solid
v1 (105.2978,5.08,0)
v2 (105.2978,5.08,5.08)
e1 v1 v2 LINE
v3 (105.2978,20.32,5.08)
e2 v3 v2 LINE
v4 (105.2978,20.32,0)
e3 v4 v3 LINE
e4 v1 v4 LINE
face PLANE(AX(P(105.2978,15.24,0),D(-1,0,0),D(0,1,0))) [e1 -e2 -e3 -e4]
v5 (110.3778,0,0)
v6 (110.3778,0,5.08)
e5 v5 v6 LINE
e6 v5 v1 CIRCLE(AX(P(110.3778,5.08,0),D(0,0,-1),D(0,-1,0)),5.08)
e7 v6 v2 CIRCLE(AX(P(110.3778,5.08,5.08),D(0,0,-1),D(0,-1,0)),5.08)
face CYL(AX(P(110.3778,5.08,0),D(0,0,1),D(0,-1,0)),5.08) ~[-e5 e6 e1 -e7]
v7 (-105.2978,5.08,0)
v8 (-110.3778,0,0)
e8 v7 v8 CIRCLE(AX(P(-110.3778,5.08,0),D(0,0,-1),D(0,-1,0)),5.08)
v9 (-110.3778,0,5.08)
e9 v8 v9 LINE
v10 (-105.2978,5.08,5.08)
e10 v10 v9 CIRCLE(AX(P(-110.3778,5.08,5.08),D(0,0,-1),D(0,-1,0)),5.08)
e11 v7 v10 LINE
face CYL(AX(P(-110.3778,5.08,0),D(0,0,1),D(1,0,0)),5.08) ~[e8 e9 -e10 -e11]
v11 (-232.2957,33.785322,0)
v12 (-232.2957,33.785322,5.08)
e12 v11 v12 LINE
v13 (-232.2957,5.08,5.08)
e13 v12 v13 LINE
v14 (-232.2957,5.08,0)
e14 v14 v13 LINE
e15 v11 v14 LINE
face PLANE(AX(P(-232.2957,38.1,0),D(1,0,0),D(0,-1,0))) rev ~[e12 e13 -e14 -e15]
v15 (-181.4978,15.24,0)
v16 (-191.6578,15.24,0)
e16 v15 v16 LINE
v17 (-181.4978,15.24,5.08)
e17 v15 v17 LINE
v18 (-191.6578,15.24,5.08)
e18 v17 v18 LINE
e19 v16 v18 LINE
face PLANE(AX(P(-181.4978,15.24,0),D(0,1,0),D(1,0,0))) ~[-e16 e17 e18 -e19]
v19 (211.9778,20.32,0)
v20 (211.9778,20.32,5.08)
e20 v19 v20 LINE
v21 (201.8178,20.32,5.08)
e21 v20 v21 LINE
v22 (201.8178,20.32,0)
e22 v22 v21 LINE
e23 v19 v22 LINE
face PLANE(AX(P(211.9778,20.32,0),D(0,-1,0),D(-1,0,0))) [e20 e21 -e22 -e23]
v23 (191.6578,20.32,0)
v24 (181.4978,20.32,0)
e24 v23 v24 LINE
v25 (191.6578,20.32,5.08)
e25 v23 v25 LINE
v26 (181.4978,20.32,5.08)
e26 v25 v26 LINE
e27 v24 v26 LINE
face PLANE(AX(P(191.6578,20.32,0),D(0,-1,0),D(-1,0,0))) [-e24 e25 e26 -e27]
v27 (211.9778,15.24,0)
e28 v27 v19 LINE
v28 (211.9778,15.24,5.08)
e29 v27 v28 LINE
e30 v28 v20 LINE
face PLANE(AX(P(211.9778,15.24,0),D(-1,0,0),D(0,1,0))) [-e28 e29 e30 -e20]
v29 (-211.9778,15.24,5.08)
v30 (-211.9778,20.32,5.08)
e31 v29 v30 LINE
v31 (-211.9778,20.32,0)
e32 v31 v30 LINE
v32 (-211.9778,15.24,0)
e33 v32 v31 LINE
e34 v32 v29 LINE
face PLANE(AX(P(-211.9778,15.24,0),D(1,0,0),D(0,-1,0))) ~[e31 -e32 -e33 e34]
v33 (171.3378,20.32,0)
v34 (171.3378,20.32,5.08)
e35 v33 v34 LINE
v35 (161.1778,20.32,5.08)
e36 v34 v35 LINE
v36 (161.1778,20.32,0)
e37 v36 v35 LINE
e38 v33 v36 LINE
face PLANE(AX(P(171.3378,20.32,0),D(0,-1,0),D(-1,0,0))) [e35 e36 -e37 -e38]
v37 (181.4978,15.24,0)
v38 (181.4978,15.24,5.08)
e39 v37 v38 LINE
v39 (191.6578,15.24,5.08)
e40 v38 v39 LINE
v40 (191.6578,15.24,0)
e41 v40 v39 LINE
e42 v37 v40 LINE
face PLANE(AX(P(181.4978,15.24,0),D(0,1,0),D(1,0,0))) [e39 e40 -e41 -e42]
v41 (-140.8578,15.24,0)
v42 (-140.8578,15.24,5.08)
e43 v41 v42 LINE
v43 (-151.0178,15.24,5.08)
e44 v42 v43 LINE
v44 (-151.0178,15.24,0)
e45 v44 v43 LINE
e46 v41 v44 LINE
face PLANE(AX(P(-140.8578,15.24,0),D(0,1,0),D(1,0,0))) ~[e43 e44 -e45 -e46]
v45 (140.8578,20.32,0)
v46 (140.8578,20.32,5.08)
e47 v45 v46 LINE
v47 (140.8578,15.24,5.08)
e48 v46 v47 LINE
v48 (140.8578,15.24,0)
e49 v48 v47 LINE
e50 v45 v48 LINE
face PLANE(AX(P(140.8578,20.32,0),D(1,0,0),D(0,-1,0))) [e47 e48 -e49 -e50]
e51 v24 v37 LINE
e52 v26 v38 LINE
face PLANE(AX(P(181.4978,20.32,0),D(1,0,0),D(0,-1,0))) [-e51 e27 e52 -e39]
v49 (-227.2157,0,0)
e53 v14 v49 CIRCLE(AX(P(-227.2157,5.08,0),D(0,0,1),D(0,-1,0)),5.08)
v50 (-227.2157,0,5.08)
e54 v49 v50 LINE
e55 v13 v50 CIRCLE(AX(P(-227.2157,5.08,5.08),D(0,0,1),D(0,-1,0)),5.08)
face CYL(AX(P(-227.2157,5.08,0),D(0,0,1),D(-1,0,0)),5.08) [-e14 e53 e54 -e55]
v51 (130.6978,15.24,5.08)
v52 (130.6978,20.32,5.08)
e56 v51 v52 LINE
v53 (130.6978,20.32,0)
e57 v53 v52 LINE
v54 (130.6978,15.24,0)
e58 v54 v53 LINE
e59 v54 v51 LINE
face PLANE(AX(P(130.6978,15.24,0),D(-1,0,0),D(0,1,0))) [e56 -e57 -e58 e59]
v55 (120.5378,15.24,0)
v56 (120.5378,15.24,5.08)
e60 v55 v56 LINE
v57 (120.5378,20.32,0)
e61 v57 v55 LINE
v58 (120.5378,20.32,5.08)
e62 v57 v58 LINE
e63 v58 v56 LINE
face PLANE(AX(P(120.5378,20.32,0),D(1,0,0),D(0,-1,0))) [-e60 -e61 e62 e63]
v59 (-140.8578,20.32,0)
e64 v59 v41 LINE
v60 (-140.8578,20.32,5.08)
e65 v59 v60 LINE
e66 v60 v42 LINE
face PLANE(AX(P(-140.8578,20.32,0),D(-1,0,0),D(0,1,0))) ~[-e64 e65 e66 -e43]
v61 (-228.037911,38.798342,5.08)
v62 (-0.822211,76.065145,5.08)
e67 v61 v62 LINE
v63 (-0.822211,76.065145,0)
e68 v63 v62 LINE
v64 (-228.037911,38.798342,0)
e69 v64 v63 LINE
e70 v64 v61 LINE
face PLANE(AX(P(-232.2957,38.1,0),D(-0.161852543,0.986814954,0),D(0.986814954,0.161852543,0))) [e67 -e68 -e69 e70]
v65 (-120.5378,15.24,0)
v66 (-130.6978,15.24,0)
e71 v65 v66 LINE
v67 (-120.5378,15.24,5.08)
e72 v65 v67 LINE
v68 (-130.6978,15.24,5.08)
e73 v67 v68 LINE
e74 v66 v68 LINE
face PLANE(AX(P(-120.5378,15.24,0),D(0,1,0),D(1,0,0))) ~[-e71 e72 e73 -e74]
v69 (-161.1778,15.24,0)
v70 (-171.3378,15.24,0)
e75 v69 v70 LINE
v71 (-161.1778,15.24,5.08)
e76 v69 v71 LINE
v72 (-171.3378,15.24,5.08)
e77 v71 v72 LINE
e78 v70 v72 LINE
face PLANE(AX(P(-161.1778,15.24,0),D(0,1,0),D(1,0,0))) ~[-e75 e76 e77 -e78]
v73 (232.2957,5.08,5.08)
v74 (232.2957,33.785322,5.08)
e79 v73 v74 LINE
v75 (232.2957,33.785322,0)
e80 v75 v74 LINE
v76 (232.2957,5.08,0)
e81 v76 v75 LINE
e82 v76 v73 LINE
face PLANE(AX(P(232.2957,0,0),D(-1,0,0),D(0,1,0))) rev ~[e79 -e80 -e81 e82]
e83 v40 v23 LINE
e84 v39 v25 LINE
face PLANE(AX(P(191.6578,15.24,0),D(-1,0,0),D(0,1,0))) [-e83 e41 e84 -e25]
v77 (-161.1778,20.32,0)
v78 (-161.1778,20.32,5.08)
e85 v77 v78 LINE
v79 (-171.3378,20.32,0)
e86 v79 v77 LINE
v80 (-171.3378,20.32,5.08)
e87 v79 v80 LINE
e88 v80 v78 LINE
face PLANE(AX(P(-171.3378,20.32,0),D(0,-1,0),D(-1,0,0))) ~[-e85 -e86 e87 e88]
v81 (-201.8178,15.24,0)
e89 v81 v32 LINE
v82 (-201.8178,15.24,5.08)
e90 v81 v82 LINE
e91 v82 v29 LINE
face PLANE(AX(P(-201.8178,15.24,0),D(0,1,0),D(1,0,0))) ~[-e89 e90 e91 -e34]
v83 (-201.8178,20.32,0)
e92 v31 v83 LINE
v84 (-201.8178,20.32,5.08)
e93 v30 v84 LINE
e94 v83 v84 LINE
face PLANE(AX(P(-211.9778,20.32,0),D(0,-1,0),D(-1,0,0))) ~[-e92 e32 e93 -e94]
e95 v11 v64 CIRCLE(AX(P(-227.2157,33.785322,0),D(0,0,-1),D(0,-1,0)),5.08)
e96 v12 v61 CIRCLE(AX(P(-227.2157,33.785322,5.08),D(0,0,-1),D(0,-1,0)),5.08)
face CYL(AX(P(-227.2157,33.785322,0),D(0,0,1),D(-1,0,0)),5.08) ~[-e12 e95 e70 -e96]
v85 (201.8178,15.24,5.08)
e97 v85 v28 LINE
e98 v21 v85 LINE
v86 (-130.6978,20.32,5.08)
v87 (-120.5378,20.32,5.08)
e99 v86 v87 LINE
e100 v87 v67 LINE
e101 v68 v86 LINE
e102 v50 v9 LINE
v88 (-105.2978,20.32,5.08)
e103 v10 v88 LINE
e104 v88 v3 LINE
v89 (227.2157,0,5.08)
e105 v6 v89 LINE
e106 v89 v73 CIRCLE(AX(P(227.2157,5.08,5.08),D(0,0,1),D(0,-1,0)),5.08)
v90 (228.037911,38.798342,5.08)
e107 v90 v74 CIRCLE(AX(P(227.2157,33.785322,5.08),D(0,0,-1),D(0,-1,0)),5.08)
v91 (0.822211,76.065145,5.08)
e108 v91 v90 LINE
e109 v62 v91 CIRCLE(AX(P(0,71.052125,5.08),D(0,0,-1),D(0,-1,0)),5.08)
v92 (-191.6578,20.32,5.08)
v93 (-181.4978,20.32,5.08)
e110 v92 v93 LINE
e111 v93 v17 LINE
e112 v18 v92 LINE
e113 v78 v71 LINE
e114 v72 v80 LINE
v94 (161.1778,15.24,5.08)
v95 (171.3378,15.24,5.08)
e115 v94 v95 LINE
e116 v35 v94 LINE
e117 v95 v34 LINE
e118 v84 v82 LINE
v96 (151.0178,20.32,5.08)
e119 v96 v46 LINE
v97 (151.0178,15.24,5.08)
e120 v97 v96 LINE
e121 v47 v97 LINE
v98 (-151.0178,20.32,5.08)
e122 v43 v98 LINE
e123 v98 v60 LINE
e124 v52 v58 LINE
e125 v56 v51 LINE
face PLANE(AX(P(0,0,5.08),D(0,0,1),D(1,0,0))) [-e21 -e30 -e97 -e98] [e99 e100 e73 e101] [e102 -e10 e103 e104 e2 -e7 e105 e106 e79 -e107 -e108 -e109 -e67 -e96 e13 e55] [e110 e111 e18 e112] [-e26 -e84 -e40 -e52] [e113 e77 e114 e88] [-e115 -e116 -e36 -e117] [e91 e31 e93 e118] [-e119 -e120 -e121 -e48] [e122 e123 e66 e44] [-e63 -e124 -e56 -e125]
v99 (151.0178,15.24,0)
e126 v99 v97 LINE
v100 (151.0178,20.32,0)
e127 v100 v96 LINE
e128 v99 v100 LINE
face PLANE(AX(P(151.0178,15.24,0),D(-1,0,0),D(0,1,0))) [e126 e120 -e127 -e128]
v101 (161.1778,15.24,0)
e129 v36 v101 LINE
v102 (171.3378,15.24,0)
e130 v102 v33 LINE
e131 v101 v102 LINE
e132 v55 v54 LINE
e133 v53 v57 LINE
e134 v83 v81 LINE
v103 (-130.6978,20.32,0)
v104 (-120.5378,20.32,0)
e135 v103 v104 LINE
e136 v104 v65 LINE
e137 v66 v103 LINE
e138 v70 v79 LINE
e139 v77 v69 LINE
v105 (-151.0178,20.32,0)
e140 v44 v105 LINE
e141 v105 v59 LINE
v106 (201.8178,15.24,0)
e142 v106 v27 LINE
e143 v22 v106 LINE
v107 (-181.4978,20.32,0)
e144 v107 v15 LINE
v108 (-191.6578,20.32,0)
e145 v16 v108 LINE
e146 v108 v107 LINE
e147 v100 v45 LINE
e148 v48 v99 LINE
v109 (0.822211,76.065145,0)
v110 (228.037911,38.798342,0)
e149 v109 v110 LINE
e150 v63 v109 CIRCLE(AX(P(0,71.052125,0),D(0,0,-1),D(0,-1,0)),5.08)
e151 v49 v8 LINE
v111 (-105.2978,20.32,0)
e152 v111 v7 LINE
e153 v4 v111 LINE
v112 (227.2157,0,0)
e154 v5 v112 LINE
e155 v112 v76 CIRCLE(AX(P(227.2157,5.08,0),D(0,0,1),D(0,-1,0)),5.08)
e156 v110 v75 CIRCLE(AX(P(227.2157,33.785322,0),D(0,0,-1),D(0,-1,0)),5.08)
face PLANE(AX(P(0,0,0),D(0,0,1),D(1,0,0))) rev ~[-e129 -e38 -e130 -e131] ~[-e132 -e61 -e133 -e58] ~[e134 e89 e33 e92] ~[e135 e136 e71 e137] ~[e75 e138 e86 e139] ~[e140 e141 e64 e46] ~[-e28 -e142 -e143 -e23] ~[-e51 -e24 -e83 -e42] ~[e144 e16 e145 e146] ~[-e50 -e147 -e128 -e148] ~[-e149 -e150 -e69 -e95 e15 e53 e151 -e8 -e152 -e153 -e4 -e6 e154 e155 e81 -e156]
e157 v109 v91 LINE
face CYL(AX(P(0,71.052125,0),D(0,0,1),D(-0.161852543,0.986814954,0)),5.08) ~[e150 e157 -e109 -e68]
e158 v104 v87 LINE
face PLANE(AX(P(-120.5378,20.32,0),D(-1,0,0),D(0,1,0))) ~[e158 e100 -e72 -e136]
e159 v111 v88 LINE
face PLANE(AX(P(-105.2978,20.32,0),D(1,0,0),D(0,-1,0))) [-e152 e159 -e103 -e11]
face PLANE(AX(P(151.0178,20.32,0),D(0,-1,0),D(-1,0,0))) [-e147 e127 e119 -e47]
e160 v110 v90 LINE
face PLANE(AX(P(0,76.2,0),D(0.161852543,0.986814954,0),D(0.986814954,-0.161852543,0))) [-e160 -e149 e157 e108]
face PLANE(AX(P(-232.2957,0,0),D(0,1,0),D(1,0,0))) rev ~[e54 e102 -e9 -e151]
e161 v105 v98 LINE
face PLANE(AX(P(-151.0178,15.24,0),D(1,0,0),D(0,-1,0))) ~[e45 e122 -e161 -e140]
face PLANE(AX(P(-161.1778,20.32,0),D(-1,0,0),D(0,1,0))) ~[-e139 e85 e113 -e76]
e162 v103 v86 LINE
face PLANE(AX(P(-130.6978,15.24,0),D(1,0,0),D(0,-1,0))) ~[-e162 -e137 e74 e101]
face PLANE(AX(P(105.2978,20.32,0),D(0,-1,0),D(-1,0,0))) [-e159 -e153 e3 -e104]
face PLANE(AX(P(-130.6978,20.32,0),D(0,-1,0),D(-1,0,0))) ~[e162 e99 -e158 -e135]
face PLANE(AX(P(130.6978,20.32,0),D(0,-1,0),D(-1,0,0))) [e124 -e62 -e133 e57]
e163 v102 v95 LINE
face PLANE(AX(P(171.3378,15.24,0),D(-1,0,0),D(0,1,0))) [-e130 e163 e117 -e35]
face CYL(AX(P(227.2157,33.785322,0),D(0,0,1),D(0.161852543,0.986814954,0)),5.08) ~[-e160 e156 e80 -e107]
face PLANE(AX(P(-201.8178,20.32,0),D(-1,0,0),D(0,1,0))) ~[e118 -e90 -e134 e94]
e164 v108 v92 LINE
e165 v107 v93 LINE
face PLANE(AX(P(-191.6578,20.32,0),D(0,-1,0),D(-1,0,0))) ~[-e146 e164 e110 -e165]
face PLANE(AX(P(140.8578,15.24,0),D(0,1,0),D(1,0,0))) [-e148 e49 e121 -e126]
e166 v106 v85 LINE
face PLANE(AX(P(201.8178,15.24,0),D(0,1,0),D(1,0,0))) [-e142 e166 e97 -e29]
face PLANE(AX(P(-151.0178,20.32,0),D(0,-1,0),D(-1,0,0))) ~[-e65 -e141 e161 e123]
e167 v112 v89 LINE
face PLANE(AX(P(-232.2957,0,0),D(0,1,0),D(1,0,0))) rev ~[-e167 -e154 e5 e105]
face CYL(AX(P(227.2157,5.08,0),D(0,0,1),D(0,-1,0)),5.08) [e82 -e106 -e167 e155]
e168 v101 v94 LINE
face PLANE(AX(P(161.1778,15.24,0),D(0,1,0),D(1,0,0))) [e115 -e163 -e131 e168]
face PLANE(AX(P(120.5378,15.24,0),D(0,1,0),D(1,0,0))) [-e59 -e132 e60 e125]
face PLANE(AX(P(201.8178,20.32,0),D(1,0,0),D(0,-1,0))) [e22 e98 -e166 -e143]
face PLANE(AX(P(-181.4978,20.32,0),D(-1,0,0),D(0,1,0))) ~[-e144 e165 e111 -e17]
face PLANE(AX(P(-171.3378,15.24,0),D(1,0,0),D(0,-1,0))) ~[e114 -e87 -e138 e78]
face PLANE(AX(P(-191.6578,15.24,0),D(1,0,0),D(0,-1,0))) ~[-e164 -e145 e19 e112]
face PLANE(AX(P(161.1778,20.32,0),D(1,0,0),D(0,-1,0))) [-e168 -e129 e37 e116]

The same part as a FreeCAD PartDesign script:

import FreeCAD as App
import Part
import Sketcher

V = App.Vector
Q = App.Units.Quantity


def edges_at(feature, points):
    """Names of the edges that pass closest to the given points."""
    edges = feature.Shape.Edges
    near = lambda p: min(range(len(edges)), key=lambda i: edges[i].distToShape(Part.Vertex(*p))[0])
    return sorted({f"Edge{near(p) + 1}" for p in points})


def add_polygon(sketch, points):
    """Adds a closed chain of lines whose ends are joined by coincident constraints."""
    first, n = sketch.GeometryCount, len(points)
    for a, b in zip(points, points[1:] + points[:1]):
        sketch.addGeometry(Part.LineSegment(App.Vector(*a, 0), App.Vector(*b, 0)), False)
    for i in range(n):
        sketch.addConstraint(Sketcher.Constraint("Coincident", first + i, 2, first + (i + 1) % n, 1))

doc = App.newDocument("Part")
params = doc.addObject("Spreadsheet::Sheet", "Params")
for row, (alias, value) in enumerate([
    ("sketch1_height", "1.5 in"),
    ("sketch1_width", "18.291 in"),
    ("pad1_length", "0.2 in"),
    ("fillet_radius", "0.2 in"),
    ("fillet2_radius", "0.2 in"),
    ("sketch2_width", "0.4 in"),
    ("sketch2_height", "0.2 in"),
    ("sketch2_height2", "0.8 in"),
    ("pocket1_length", "0.2 in"),
    ("fillet3_radius", "0.2 in"),
], start=1):
    params.set(f"A{row}", alias)
    params.set(f"B{row}", "=" + value)
    params.setAlias(f"B{row}", alias)

body = doc.addObject("PartDesign::Body", "Body")

# Sketch on XY plane
sketch1 = body.newObject("Sketcher::SketchObject", "Sketch")
sketch1.AttachmentSupport = (doc.getObject("XY_Plane"), [""])
sketch1.MapMode = "FlatFace"
add_polygon(sketch1, [(-232.2957, 38.1), (-232.2957, 0), (232.2957, 0), (232.2957, 38.1), (0, 76.2)])  # lines 0-4
sketch1.addConstraint([
    Sketcher.Constraint("Vertical", 0),
    Sketcher.Constraint("Horizontal", 1),
    Sketcher.Constraint("Vertical", 2),
    Sketcher.Constraint("Symmetric", 0, 2, 1, 2, -1, 1),
    Sketcher.Constraint("PointOnObject", 3, 2, -2),
    Sketcher.Constraint("Horizontal", 2, 2, 4, 2),
    Sketcher.Constraint("DistanceY", 0, 2, 0, 1, Q("1.5 in")),
    Sketcher.Constraint("DistanceY", 2, 2, 3, 2, Q("1.5 in")),
    Sketcher.Constraint("DistanceX", 1, 1, 1, 2, Q("18.291 in")),
])
sketch1.setExpression("Constraints[11]", "Params.sketch1_height")
sketch1.setExpression("Constraints[13]", "Params.sketch1_width")
pad1 = body.newObject("PartDesign::Pad", "Pad")
pad1.Profile = sketch1
pad1.setExpression("Length", "Params.pad1_length")
doc.recompute()

fillet = body.newObject("PartDesign::Fillet", "Fillet")
fillet.Base = (pad1, edges_at(pad1, [(0, 76.2, 2.54), (232.296, 38.1, 2.54), (-232.296, 38.1, 2.54)]))
fillet.setExpression("Radius", "Params.fillet_radius")
doc.recompute()

fillet2 = body.newObject("PartDesign::Fillet", "Fillet001")
fillet2.Base = (fillet, edges_at(fillet, [(-232.296, 0, 2.54), (232.296, 0, 2.54)]))
fillet2.setExpression("Radius", "Params.fillet2_radius")

# Sketch on XY plane
sketch2 = body.newObject("Sketcher::SketchObject", "Sketch001")
sketch2.AttachmentSupport = (doc.getObject("XY_Plane"), [""])
sketch2.MapMode = "FlatFace"
add_polygon(sketch2, [(201.8178, 20.32), (211.9778, 20.32), (211.9778, 15.24), (201.8178, 15.24)])  # lines 0-3
add_polygon(sketch2, [(181.4978, 20.32), (191.6578, 20.32), (191.6578, 15.24), (181.4978, 15.24)])  # lines 4-7
add_polygon(sketch2, [(161.1778, 20.32), (171.3378, 20.32), (171.3378, 15.24), (161.1778, 15.24)])  # lines 8-11
add_polygon(sketch2, [(140.8578, 20.32), (151.0178, 20.32), (151.0178, 15.24), (140.8578, 15.24)])  # lines 12-15
add_polygon(sketch2, [(120.5378, 20.32), (130.6978, 20.32), (130.6978, 15.24), (120.5378, 15.24)])  # lines 16-19
add_polygon(sketch2, [(105.2978, 20.32), (105.2978, 0), (-105.2978, 0), (-105.2978, 20.32)])  # lines 20-23
sketch2.addConstraint([
    Sketcher.Constraint("Horizontal", 0),
    Sketcher.Constraint("Vertical", 1),
    Sketcher.Constraint("Horizontal", 2),
    Sketcher.Constraint("Vertical", 3),
    Sketcher.Constraint("Horizontal", 4),
    Sketcher.Constraint("Vertical", 5),
    Sketcher.Constraint("Horizontal", 6),
    Sketcher.Constraint("Vertical", 7),
    Sketcher.Constraint("Horizontal", 8),
    Sketcher.Constraint("Vertical", 9),
    Sketcher.Constraint("Horizontal", 10),
    Sketcher.Constraint("Vertical", 11),
    Sketcher.Constraint("Horizontal", 12),
    Sketcher.Constraint("Vertical", 13),
    Sketcher.Constraint("Horizontal", 14),
    Sketcher.Constraint("Vertical", 15),
    Sketcher.Constraint("Horizontal", 16),
    Sketcher.Constraint("Vertical", 17),
    Sketcher.Constraint("Horizontal", 18),
    Sketcher.Constraint("Vertical", 19),
    Sketcher.Constraint("Vertical", 20),
    Sketcher.Constraint("Horizontal", 21),
    Sketcher.Constraint("Vertical", 22),
    Sketcher.Constraint("Horizontal", 23),
    Sketcher.Constraint("Symmetric", 20, 2, 21, 2, -1, 1),
    Sketcher.Constraint("Horizontal", 3, 2, 4, 2),
    Sketcher.Constraint("Horizontal", 2, 2, 5, 2),
    Sketcher.Constraint("Horizontal", 7, 2, 8, 2),
    Sketcher.Constraint("Horizontal", 6, 2, 9, 2),
    Sketcher.Constraint("Horizontal", 11, 2, 12, 2),
    Sketcher.Constraint("Horizontal", 10, 2, 13, 2),
    Sketcher.Constraint("Horizontal", 15, 2, 16, 2),
    Sketcher.Constraint("Horizontal", 14, 2, 17, 2),
    Sketcher.Constraint("Horizontal", 19, 2, 22, 2),
    Sketcher.Constraint("Equal", 2, 4),
    Sketcher.Constraint("Equal", 6, 8),
    Sketcher.Constraint("Equal", 10, 12),
    Sketcher.Constraint("Equal", 14, 16),
    Sketcher.Constraint("DistanceX", 0, 1, 0, 2, Q("0.4 in")),
    Sketcher.Constraint("DistanceY", 1, 2, 1, 1, Q("0.2 in")),
    Sketcher.Constraint("DistanceY", 20, 2, 20, 1, Q("0.8 in")),
    Sketcher.Constraint("DistanceX", 20, 2, 17, 2, Q("1 in")),
    Sketcher.Constraint("DistanceX", 4, 2, 3, 2, Q("0.4 in")),
    Sketcher.Constraint("DistanceX", 8, 2, 7, 2, Q("0.4 in")),
    Sketcher.Constraint("DistanceX", 12, 2, 11, 2, Q("0.4 in")),
    Sketcher.Constraint("DistanceX", 16, 2, 15, 2, Q("0.4 in")),
    Sketcher.Constraint("DistanceX", 21, 2, 21, 1, 210.5956),
])
sketch2.setExpression("Constraints[62]", "Params.sketch2_width")
sketch2.setExpression("Constraints[63]", "Params.sketch2_height")
sketch2.setExpression("Constraints[64]", "Params.sketch2_height2")
pocket1 = body.newObject("PartDesign::Pocket", "Pocket")
pocket1.Profile = sketch2
pocket1.setExpression("Length", "Params.pocket1_length")
pocket1.Reversed = True
doc.recompute()

fillet3 = body.newObject("PartDesign::Fillet", "Fillet002")
fillet3.Base = (pocket1, edges_at(pocket1, [(105.298, 0, 2.54), (-105.298, 0, 2.54)]))
fillet3.setExpression("Radius", "Params.fillet3_radius")
doc.recompute()

mirrored = body.newObject("PartDesign::Mirrored", "Mirrored")
mirrored.Originals = [pocket1]
mirrored.MirrorPlane = (doc.getObject("YZ_Plane"), [""])
body.Tip = mirrored

doc.recompute()
